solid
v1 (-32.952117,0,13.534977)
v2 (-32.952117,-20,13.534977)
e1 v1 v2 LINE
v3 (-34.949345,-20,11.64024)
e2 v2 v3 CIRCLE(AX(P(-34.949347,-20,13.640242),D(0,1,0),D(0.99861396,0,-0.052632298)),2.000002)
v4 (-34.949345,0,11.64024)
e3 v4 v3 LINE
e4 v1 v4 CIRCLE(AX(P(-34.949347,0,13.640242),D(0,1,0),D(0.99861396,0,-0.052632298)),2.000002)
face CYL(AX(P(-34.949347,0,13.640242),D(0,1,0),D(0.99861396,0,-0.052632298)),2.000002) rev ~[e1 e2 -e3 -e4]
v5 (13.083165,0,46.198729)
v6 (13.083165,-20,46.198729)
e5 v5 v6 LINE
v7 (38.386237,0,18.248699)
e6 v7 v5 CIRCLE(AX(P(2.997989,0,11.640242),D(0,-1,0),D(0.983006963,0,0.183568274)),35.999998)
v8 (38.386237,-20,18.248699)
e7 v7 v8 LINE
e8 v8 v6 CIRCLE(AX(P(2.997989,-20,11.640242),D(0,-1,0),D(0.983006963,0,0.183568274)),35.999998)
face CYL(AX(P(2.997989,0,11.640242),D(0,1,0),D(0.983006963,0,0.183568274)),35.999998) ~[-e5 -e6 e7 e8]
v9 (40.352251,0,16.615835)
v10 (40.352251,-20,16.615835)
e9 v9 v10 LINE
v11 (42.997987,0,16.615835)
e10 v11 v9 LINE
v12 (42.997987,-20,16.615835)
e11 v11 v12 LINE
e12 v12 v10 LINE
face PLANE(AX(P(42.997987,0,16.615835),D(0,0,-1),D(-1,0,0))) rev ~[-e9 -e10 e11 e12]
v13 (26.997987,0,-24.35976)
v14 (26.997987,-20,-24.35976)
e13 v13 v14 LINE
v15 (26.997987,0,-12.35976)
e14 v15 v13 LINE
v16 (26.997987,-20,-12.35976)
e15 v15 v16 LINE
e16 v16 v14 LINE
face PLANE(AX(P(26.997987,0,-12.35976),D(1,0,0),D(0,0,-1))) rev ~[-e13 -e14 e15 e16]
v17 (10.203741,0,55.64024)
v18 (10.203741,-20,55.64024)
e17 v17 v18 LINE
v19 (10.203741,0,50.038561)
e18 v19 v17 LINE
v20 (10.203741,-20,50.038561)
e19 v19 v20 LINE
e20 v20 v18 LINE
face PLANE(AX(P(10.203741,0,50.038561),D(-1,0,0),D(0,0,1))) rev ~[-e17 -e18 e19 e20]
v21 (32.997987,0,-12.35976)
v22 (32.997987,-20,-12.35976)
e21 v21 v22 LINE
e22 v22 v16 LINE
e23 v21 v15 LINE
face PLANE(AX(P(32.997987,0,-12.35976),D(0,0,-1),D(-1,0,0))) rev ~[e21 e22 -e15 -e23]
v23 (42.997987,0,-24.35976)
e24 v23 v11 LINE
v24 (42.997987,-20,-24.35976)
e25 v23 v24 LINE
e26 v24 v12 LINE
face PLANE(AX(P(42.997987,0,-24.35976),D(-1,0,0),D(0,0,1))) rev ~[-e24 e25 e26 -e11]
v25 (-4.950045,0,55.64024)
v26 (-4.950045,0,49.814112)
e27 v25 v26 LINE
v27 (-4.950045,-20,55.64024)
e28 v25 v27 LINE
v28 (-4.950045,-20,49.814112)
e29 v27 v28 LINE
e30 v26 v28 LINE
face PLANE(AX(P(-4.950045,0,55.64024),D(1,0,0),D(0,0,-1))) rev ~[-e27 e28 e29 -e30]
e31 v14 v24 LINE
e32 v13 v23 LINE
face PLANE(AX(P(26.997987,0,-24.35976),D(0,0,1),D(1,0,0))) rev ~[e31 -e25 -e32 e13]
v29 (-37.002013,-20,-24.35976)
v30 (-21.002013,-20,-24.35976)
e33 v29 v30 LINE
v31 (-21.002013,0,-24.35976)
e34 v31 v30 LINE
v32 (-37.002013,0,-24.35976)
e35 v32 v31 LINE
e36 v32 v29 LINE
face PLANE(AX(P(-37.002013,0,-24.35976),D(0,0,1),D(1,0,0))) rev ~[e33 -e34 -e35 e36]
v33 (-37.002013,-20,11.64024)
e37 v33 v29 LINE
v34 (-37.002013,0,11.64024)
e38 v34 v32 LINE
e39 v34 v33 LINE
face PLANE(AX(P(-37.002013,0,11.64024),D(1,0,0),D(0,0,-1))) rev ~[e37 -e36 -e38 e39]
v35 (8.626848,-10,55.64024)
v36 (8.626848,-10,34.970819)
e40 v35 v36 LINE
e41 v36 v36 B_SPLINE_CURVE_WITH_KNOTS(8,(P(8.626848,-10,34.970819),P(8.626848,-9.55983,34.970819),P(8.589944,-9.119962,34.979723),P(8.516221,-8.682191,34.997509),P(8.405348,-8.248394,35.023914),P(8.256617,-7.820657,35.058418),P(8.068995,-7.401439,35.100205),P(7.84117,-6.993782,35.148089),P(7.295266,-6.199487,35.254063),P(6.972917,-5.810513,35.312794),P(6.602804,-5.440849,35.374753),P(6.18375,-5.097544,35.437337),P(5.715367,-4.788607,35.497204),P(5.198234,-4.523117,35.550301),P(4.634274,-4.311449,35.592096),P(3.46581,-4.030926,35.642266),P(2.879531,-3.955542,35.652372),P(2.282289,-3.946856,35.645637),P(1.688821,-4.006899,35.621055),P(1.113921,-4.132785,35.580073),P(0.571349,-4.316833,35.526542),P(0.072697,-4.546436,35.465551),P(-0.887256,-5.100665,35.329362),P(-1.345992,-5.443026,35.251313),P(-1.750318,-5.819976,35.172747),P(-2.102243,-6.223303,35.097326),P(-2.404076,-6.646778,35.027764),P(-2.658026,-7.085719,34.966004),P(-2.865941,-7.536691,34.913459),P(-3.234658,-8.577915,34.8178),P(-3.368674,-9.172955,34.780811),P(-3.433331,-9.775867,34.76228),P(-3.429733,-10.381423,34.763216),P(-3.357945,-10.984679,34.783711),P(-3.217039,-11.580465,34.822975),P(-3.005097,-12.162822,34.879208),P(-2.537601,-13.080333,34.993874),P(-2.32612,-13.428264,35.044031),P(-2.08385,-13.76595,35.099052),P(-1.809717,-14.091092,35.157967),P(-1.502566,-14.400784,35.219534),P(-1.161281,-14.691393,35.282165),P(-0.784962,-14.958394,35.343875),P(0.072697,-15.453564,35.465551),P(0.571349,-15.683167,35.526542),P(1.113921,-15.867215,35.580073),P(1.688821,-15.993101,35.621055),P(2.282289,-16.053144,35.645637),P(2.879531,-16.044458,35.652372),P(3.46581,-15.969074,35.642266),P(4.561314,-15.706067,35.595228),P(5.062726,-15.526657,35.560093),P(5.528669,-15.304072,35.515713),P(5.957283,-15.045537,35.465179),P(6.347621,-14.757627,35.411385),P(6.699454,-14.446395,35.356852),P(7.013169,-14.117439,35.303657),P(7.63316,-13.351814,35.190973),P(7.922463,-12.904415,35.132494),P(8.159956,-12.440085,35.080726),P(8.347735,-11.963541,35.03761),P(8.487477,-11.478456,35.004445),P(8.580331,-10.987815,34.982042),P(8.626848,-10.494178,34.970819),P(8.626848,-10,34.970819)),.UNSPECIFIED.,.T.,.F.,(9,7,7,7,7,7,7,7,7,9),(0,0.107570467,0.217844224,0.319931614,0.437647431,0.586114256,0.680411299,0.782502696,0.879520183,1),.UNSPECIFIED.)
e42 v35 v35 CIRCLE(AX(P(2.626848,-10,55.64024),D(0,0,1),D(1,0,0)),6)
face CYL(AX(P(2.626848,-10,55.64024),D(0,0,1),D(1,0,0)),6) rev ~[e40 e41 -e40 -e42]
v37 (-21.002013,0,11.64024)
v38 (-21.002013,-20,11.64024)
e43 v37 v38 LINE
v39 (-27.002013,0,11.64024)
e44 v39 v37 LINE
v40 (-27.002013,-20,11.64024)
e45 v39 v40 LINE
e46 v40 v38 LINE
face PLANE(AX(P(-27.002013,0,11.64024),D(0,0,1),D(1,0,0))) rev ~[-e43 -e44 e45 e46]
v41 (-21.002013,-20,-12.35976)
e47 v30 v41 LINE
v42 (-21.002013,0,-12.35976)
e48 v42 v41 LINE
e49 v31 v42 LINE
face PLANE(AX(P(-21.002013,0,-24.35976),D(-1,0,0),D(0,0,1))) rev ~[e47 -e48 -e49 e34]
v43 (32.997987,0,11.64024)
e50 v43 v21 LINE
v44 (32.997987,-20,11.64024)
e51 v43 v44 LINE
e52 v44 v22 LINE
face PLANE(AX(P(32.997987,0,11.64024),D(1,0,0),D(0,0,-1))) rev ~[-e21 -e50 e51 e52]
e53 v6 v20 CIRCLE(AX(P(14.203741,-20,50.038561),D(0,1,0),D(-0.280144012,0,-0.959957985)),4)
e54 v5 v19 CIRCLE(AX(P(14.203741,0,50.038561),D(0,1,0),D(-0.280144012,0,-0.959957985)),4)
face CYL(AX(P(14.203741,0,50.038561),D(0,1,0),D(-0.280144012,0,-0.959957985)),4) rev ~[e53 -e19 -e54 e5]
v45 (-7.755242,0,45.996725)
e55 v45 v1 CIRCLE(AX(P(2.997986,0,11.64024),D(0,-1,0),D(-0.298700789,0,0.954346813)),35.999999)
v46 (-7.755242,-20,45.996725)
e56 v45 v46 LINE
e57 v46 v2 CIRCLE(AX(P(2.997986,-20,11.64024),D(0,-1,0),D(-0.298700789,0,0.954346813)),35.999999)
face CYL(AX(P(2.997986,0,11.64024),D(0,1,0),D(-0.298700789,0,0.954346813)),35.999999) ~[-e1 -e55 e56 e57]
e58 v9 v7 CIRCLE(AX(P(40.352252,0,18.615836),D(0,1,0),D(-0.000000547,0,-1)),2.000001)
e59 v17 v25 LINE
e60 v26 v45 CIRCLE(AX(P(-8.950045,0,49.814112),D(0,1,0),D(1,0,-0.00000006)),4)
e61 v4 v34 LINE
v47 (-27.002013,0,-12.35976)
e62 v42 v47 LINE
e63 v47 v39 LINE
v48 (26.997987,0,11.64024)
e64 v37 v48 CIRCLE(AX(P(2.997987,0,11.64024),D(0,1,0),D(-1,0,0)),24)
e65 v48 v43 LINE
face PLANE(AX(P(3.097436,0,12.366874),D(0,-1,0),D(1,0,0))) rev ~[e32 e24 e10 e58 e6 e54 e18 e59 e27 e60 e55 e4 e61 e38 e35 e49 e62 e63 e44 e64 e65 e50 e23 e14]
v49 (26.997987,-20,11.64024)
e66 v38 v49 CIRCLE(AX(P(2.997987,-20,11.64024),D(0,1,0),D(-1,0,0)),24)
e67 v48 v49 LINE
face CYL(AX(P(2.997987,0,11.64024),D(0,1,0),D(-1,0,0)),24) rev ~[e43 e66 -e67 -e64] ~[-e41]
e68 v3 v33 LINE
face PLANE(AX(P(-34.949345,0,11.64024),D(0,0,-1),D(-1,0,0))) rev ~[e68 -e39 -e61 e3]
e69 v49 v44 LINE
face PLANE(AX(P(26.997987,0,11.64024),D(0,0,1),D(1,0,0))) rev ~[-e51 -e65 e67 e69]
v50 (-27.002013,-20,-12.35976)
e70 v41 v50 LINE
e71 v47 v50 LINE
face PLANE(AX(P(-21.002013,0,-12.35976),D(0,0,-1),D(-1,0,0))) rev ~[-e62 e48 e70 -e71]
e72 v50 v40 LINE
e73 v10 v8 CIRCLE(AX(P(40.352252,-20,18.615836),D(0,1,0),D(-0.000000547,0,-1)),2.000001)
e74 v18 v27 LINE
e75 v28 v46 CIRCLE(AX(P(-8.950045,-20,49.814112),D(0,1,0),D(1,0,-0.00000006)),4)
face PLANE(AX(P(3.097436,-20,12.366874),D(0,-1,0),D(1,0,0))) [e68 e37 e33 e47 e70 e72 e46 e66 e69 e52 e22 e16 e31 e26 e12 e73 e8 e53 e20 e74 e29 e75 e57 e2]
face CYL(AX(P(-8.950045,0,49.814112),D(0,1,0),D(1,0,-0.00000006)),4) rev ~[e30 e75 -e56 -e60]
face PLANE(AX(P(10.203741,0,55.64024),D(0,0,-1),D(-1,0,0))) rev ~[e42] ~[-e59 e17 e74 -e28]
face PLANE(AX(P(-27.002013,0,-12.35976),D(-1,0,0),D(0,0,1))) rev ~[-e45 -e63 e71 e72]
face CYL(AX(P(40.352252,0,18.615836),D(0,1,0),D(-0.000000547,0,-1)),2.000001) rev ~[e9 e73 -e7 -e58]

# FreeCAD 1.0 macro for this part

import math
import FreeCAD as App
import Part
import Sketcher

doc = App.newDocument("Part")
params = doc.addObject("Spreadsheet::Sheet", "Params")
for row, (alias, value) in enumerate([
    ("sketch1_radius", "24 mm"),
    ("sketch1_radius2", "2.000001 mm"),
    ("sketch1_radius3", "4 mm"),
    ("sketch1_radius4", "35.999999 mm"),
    ("sketch1_width", "16 mm"),
    ("pad1_length", "20 mm"),
    ("sketch2_diameter", "12 mm"),
], start=1):
    params.set(f"A{row}", alias)
    params.set(f"B{row}", "=" + value)
    params.setAlias(f"B{row}", alias)

body = doc.addObject("PartDesign::Body", "Body")

sketch1 = body.newObject("Sketcher::SketchObject", "Sketch")
sketch1.AttachmentSupport = (doc.getObject("XZ_Plane"), [""])
sketch1.MapMode = "FlatFace"
sketch1.addGeometry([
    Part.LineSegment(App.Vector(-34.9, 11.6, 0), App.Vector(-37, 11.6, 0)),
    Part.LineSegment(App.Vector(-37, 11.6, 0), App.Vector(-37, -24.4, 0)),
    Part.LineSegment(App.Vector(-37, -24.4, 0), App.Vector(-21, -24.4, 0)),
    Part.LineSegment(App.Vector(-21, -24.4, 0), App.Vector(-21, -12.4, 0)),
    Part.LineSegment(App.Vector(-21, -12.4, 0), App.Vector(-27, -12.4, 0)),
    Part.LineSegment(App.Vector(-27, -12.4, 0), App.Vector(-27, 11.6, 0)),
    Part.LineSegment(App.Vector(-27, 11.6, 0), App.Vector(-21, 11.6, 0)),
    Part.ArcOfCircle(Part.Circle(App.Vector(3, 11.6, 0), App.Vector(0, 0, 1), 24), math.radians(0), math.radians(180)),
    Part.LineSegment(App.Vector(27, 11.6, 0), App.Vector(33, 11.6, 0)),
    Part.LineSegment(App.Vector(33, 11.6, 0), App.Vector(33, -12.4, 0)),
    Part.LineSegment(App.Vector(33, -12.4, 0), App.Vector(27, -12.4, 0)),
    Part.LineSegment(App.Vector(27, -12.4, 0), App.Vector(27, -24.4, 0)),
    Part.LineSegment(App.Vector(27, -24.4, 0), App.Vector(43, -24.4, 0)),
    Part.LineSegment(App.Vector(43, -24.4, 0), App.Vector(43, 16.6, 0)),
    Part.LineSegment(App.Vector(43, 16.6, 0), App.Vector(40.4, 16.6, 0)),
    Part.ArcOfCircle(Part.Circle(App.Vector(40.4, 18.6, 0), App.Vector(0, 0, 1), 2), math.radians(-169), math.radians(-90)),
    Part.ArcOfCircle(Part.Circle(App.Vector(3, 11.6, 0), App.Vector(0, 0, 1), 36), math.radians(11), math.radians(74)),
    Part.ArcOfCircle(Part.Circle(App.Vector(14.2, 50, 0), App.Vector(0, 0, 1), 4), math.radians(-180), math.radians(-106)),
    Part.LineSegment(App.Vector(10.2, 50, 0), App.Vector(10.2, 55.6, 0)),
    Part.LineSegment(App.Vector(10.2, 55.6, 0), App.Vector(-5, 55.6, 0)),
    Part.LineSegment(App.Vector(-5, 55.6, 0), App.Vector(-5, 49.8, 0)),
    Part.ArcOfCircle(Part.Circle(App.Vector(-9, 49.8, 0), App.Vector(0, 0, 1), 4), math.radians(-73), math.radians(0)),
    Part.ArcOfCircle(Part.Circle(App.Vector(3, 11.6, 0), App.Vector(0, 0, 1), 36), math.radians(107), math.radians(177)),
    Part.ArcOfCircle(Part.Circle(App.Vector(-34.9, 13.6, 0), App.Vector(0, 0, 1), 2), math.radians(-90), math.radians(-3)),
], False)
sketch1.addConstraint([
    Sketcher.Constraint("Coincident", 0, 2, 1, 1),
    Sketcher.Constraint("Coincident", 1, 2, 2, 1),
    Sketcher.Constraint("Coincident", 2, 2, 3, 1),
    Sketcher.Constraint("Coincident", 3, 2, 4, 1),
    Sketcher.Constraint("Coincident", 4, 2, 5, 1),
    Sketcher.Constraint("Coincident", 5, 2, 6, 1),
    Sketcher.Constraint("Coincident", 6, 2, 7, 2),
    Sketcher.Constraint("Coincident", 7, 1, 8, 1),
    Sketcher.Constraint("Coincident", 8, 2, 9, 1),
    Sketcher.Constraint("Coincident", 9, 2, 10, 1),
    Sketcher.Constraint("Coincident", 10, 2, 11, 1),
    Sketcher.Constraint("Coincident", 11, 2, 12, 1),
    Sketcher.Constraint("Coincident", 12, 2, 13, 1),
    Sketcher.Constraint("Coincident", 13, 2, 14, 1),
    Sketcher.Constraint("Tangent", 14, 2, 15, 2),
    Sketcher.Constraint("Tangent", 15, 1, 16, 1),
    Sketcher.Constraint("Tangent", 16, 2, 17, 2),
    Sketcher.Constraint("Tangent", 17, 1, 18, 1),
    Sketcher.Constraint("Coincident", 18, 2, 19, 1),
    Sketcher.Constraint("Coincident", 19, 2, 20, 1),
    Sketcher.Constraint("Tangent", 20, 2, 21, 2),
    Sketcher.Constraint("Tangent", 21, 1, 22, 1),
    Sketcher.Constraint("Tangent", 22, 2, 23, 2),
    Sketcher.Constraint("Tangent", 23, 1, 0, 1),
    Sketcher.Constraint("Horizontal", 0),
    Sketcher.Constraint("Vertical", 1),
    Sketcher.Constraint("Horizontal", 2),
    Sketcher.Constraint("Vertical", 3),
    Sketcher.Constraint("Horizontal", 4),
    Sketcher.Constraint("Vertical", 5),
    Sketcher.Constraint("Horizontal", 6),
    Sketcher.Constraint("Horizontal", 8),
    Sketcher.Constraint("Vertical", 9),
    Sketcher.Constraint("Horizontal", 10),
    Sketcher.Constraint("Vertical", 11),
    Sketcher.Constraint("Horizontal", 12),
    Sketcher.Constraint("Vertical", 13),
    Sketcher.Constraint("Horizontal", 14),
    Sketcher.Constraint("Vertical", 18),
    Sketcher.Constraint("Horizontal", 19),
    Sketcher.Constraint("Vertical", 20),
    Sketcher.Constraint("Coincident", 16, 3, 7, 3),
    Sketcher.Constraint("Coincident", 22, 3, 7, 3),
    Sketcher.Constraint("Equal", 17, 21),
    Sketcher.Constraint("Equal", 16, 22),
    Sketcher.Constraint("Equal", 15, 23),
    Sketcher.Constraint("Horizontal", 22, 3, 0, 2),
    Sketcher.Constraint("Horizontal", 0, 2, 5, 2),
    Sketcher.Constraint("Horizontal", 6, 2, 7, 1),
    Sketcher.Constraint("Horizontal", 4, 2, 9, 2),
    Sketcher.Constraint("Horizontal", 2, 2, 11, 2),
    Sketcher.Constraint("Vertical", 3, 2, 6, 2),
    Sketcher.Constraint("Vertical", 7, 1, 10, 2),
    Sketcher.Constraint("Equal", 6, 8),
    Sketcher.Constraint("Equal", 2, 12),
    Sketcher.Constraint("Radius", 7, 24.0),
    Sketcher.Constraint("Radius", 15, 2.000001),
    Sketcher.Constraint("Radius", 17, 4.0),
    Sketcher.Constraint("Radius", 22, 35.999999),
    Sketcher.Constraint("DistanceX", 2, 1, 2, 2, 16.0),
    Sketcher.Constraint("DistanceX", 4, 2, 4, 1, 6.0),
    Sketcher.Constraint("DistanceY", 1, 2, 1, 1, 36.0),
    Sketcher.Constraint("DistanceY", 3, 1, 3, 2, 12.0),
    Sketcher.Constraint("DistanceY", 16, 3, 18, 2, 43.999998),
    Sketcher.Constraint("DistanceY", 18, 1, 18, 2, 5.601679),
    Sketcher.Constraint("DistanceY", -1, 1, 15, 1, 18.248699),
    Sketcher.Constraint("DistanceX", 23, 3, 21, 3, 25.999302),
    Sketcher.Constraint("DistanceX", 14, 2, 14, 1, 2.645736),
    Sketcher.Constraint("DistanceX", -1, 1, 16, 3, 2.997989),
])
sketch1.setExpression("Constraints[55]", "Params.sketch1_radius")
sketch1.setExpression("Constraints[56]", "Params.sketch1_radius2")
sketch1.setExpression("Constraints[57]", "Params.sketch1_radius3")
sketch1.setExpression("Constraints[58]", "Params.sketch1_radius4")
sketch1.setExpression("Constraints[59]", "Params.sketch1_width")
pad1 = body.newObject("PartDesign::Pad", "Pad")
pad1.Profile = sketch1
pad1.setExpression("Length", "Params.pad1_length")

sketch2 = body.newObject("Sketcher::SketchObject", "Sketch001")
sketch2.AttachmentSupport = (doc.getObject("XY_Plane"), [""])
sketch2.MapMode = "FlatFace"
sketch2.AttachmentOffset = App.Placement(App.Vector(0, 0, 55.64024), App.Rotation())
sketch2.addGeometry(Part.Circle(App.Vector(3, -10, 0), App.Vector(0, 0, 1), 6), False)
sketch2.addConstraint([
    Sketcher.Constraint("Diameter", 0, 12.0),
    Sketcher.Constraint("DistanceY", 0, 3, -1, 1, 10.0),
    Sketcher.Constraint("DistanceX", -1, 1, 0, 3, 2.626848),
])
sketch2.setExpression("Constraints[0]", "Params.sketch2_diameter")
pocket1 = body.newObject("PartDesign::Pocket", "Pocket")
pocket1.Profile = sketch2
pocket1.Type = "ThroughAll"

doc.recompute()
